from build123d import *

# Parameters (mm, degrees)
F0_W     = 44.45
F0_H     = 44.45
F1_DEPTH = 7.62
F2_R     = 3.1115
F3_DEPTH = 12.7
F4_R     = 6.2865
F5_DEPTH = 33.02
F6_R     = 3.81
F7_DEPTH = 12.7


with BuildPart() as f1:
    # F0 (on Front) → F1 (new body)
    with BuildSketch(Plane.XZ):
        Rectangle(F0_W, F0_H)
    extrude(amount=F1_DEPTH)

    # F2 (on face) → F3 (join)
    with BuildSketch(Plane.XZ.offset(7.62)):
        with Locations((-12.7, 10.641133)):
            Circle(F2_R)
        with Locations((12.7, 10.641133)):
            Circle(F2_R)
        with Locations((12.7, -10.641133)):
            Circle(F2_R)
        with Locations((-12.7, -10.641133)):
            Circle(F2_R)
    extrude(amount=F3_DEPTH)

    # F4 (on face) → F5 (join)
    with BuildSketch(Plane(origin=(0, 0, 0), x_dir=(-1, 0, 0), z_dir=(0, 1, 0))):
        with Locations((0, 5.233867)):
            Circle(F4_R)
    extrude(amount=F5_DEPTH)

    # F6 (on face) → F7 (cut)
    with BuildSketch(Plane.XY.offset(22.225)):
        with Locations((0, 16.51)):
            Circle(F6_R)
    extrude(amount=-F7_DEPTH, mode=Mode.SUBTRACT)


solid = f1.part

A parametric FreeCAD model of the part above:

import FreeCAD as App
import Part
import Sketcher

V = App.Vector
Q = App.Units.Quantity


def add_polygon(sketch, points):
    """Adds a closed chain of lines whose ends are joined by coincident constraints."""
    first, n = sketch.GeometryCount, len(points)
    for a, b in zip(points, points[1:] + points[:1]):
        sketch.addGeometry(Part.LineSegment(App.Vector(*a, 0), App.Vector(*b, 0)), False)
    for i in range(n):
        sketch.addConstraint(Sketcher.Constraint("Coincident", first + i, 2, first + (i + 1) % n, 1))

doc = App.newDocument("Part")
params = doc.addObject("Spreadsheet::Sheet", "Params")
for row, (alias, value) in enumerate([
    ("sketch1_width", "1.75 in"),
    ("pad1_length", "0.3 in"),
    ("sketch2_diameter", "0.245 in"),
    ("pad2_length", "0.5 in"),
    ("sketch3_diameter", "0.495 in"),
    ("pad3_length", "1.3 in"),
    ("sketch4_diameter", "0.3 in"),
    ("pocket1_length", "0.5 in"),
], start=1):
    params.set(f"A{row}", alias)
    params.set(f"B{row}", "=" + value)
    params.setAlias(f"B{row}", alias)

body = doc.addObject("PartDesign::Body", "Body")

# Sketch on XZ plane
sketch1 = body.newObject("Sketcher::SketchObject", "Sketch")
sketch1.AttachmentSupport = (doc.getObject("XZ_Plane"), [""])
sketch1.MapMode = "FlatFace"
add_polygon(sketch1, [(-22, 22), (-22, -22), (22, -22), (22, 22)])  # lines 0-3
sketch1.addConstraint([
    Sketcher.Constraint("Vertical", 0),
    Sketcher.Constraint("Horizontal", 1),
    Sketcher.Constraint("Vertical", 2),
    Sketcher.Constraint("Horizontal", 3),
    Sketcher.Constraint("Symmetric", 0, 2, 2, 2, -1, 1),
    Sketcher.Constraint("Equal", 3, 0),
    Sketcher.Constraint("DistanceX", 1, 1, 1, 2, Q("1.75 in")),
])
sketch1.setExpression("Constraints[10]", "Params.sketch1_width")
pad1 = body.newObject("PartDesign::Pad", "Pad")
pad1.Profile = sketch1
pad1.setExpression("Length", "Params.pad1_length")

# Sketch on XZ plane
sketch2 = body.newObject("Sketcher::SketchObject", "Sketch001")
sketch2.AttachmentSupport = (doc.getObject("XZ_Plane"), [""])
sketch2.MapMode = "FlatFace"
sketch2.AttachmentOffset = App.Placement(V(0, 0, 0.3 * 25.4), App.Rotation())
sketch2.addGeometry([
    Part.Circle(V(-12.7, 10.6, 0), V(0, 0, 1), 3.1),
    Part.Circle(V(12.7, 10.6, 0), V(0, 0, 1), 3.1),
    Part.Circle(V(12.7, -10.6, 0), V(0, 0, 1), 3.1),
    Part.Circle(V(-12.7, -10.6, 0), V(0, 0, 1), 3.1),
], False)
sketch2.addConstraint([
    Sketcher.Constraint("Equal", 0, 1),
    Sketcher.Constraint("Equal", 1, 2),
    Sketcher.Constraint("Equal", 2, 3),
    Sketcher.Constraint("Symmetric", 0, 3, 2, 3, -1, 1),
    Sketcher.Constraint("Symmetric", 1, 3, 3, 3, -1, 1),
    Sketcher.Constraint("Symmetric", 0, 3, 1, 3, -2),
    Sketcher.Constraint("Diameter", 0, Q("0.245 in")),
    Sketcher.Constraint("DistanceX", 0, 3, 1, 3, Q("1 in")),
    Sketcher.Constraint("DistanceY", -1, 1, 0, 3, 10.641133),
])
sketch2.setExpression("Constraints[6]", "Params.sketch2_diameter")
pad2 = body.newObject("PartDesign::Pad", "Pad001")
pad2.Profile = sketch2
pad2.setExpression("Length", "Params.pad2_length")

# Sketch on XZ plane
sketch3 = body.newObject("Sketcher::SketchObject", "Sketch002")
sketch3.AttachmentSupport = (doc.getObject("XZ_Plane"), [""])
sketch3.MapMode = "FlatFace"
sketch3.addGeometry(Part.Circle(V(0, 5, 0), V(0, 0, 1), 6), False)
sketch3.addConstraint([
    Sketcher.Constraint("PointOnObject", 0, 3, -2),
    Sketcher.Constraint("Diameter", 0, Q("0.495 in")),
    Sketcher.Constraint("DistanceY", -1, 1, 0, 3, 5.233867),
])
sketch3.setExpression("Constraints[1]", "Params.sketch3_diameter")
pad3 = body.newObject("PartDesign::Pad", "Pad002")
pad3.Profile = sketch3
pad3.setExpression("Length", "Params.pad3_length")
pad3.Reversed = True

# Sketch on XY plane
sketch4 = body.newObject("Sketcher::SketchObject", "Sketch003")
sketch4.AttachmentSupport = (doc.getObject("XY_Plane"), [""])
sketch4.MapMode = "FlatFace"
sketch4.AttachmentOffset = App.Placement(V(0, 0, 0.875 * 25.4), App.Rotation())
sketch4.addGeometry(Part.Circle(V(0, 16.5, 0), V(0, 0, 1), 3.8), False)
sketch4.addConstraint([
    Sketcher.Constraint("PointOnObject", 0, 3, -2),
    Sketcher.Constraint("Diameter", 0, Q("0.3 in")),
    Sketcher.Constraint("DistanceY", -1, 1, 0, 3, Q("0.65 in")),
])
sketch4.setExpression("Constraints[1]", "Params.sketch4_diameter")
pocket1 = body.newObject("PartDesign::Pocket", "Pocket")
pocket1.Profile = sketch4
pocket1.setExpression("Length", "Params.pocket1_length")

doc.recompute()
